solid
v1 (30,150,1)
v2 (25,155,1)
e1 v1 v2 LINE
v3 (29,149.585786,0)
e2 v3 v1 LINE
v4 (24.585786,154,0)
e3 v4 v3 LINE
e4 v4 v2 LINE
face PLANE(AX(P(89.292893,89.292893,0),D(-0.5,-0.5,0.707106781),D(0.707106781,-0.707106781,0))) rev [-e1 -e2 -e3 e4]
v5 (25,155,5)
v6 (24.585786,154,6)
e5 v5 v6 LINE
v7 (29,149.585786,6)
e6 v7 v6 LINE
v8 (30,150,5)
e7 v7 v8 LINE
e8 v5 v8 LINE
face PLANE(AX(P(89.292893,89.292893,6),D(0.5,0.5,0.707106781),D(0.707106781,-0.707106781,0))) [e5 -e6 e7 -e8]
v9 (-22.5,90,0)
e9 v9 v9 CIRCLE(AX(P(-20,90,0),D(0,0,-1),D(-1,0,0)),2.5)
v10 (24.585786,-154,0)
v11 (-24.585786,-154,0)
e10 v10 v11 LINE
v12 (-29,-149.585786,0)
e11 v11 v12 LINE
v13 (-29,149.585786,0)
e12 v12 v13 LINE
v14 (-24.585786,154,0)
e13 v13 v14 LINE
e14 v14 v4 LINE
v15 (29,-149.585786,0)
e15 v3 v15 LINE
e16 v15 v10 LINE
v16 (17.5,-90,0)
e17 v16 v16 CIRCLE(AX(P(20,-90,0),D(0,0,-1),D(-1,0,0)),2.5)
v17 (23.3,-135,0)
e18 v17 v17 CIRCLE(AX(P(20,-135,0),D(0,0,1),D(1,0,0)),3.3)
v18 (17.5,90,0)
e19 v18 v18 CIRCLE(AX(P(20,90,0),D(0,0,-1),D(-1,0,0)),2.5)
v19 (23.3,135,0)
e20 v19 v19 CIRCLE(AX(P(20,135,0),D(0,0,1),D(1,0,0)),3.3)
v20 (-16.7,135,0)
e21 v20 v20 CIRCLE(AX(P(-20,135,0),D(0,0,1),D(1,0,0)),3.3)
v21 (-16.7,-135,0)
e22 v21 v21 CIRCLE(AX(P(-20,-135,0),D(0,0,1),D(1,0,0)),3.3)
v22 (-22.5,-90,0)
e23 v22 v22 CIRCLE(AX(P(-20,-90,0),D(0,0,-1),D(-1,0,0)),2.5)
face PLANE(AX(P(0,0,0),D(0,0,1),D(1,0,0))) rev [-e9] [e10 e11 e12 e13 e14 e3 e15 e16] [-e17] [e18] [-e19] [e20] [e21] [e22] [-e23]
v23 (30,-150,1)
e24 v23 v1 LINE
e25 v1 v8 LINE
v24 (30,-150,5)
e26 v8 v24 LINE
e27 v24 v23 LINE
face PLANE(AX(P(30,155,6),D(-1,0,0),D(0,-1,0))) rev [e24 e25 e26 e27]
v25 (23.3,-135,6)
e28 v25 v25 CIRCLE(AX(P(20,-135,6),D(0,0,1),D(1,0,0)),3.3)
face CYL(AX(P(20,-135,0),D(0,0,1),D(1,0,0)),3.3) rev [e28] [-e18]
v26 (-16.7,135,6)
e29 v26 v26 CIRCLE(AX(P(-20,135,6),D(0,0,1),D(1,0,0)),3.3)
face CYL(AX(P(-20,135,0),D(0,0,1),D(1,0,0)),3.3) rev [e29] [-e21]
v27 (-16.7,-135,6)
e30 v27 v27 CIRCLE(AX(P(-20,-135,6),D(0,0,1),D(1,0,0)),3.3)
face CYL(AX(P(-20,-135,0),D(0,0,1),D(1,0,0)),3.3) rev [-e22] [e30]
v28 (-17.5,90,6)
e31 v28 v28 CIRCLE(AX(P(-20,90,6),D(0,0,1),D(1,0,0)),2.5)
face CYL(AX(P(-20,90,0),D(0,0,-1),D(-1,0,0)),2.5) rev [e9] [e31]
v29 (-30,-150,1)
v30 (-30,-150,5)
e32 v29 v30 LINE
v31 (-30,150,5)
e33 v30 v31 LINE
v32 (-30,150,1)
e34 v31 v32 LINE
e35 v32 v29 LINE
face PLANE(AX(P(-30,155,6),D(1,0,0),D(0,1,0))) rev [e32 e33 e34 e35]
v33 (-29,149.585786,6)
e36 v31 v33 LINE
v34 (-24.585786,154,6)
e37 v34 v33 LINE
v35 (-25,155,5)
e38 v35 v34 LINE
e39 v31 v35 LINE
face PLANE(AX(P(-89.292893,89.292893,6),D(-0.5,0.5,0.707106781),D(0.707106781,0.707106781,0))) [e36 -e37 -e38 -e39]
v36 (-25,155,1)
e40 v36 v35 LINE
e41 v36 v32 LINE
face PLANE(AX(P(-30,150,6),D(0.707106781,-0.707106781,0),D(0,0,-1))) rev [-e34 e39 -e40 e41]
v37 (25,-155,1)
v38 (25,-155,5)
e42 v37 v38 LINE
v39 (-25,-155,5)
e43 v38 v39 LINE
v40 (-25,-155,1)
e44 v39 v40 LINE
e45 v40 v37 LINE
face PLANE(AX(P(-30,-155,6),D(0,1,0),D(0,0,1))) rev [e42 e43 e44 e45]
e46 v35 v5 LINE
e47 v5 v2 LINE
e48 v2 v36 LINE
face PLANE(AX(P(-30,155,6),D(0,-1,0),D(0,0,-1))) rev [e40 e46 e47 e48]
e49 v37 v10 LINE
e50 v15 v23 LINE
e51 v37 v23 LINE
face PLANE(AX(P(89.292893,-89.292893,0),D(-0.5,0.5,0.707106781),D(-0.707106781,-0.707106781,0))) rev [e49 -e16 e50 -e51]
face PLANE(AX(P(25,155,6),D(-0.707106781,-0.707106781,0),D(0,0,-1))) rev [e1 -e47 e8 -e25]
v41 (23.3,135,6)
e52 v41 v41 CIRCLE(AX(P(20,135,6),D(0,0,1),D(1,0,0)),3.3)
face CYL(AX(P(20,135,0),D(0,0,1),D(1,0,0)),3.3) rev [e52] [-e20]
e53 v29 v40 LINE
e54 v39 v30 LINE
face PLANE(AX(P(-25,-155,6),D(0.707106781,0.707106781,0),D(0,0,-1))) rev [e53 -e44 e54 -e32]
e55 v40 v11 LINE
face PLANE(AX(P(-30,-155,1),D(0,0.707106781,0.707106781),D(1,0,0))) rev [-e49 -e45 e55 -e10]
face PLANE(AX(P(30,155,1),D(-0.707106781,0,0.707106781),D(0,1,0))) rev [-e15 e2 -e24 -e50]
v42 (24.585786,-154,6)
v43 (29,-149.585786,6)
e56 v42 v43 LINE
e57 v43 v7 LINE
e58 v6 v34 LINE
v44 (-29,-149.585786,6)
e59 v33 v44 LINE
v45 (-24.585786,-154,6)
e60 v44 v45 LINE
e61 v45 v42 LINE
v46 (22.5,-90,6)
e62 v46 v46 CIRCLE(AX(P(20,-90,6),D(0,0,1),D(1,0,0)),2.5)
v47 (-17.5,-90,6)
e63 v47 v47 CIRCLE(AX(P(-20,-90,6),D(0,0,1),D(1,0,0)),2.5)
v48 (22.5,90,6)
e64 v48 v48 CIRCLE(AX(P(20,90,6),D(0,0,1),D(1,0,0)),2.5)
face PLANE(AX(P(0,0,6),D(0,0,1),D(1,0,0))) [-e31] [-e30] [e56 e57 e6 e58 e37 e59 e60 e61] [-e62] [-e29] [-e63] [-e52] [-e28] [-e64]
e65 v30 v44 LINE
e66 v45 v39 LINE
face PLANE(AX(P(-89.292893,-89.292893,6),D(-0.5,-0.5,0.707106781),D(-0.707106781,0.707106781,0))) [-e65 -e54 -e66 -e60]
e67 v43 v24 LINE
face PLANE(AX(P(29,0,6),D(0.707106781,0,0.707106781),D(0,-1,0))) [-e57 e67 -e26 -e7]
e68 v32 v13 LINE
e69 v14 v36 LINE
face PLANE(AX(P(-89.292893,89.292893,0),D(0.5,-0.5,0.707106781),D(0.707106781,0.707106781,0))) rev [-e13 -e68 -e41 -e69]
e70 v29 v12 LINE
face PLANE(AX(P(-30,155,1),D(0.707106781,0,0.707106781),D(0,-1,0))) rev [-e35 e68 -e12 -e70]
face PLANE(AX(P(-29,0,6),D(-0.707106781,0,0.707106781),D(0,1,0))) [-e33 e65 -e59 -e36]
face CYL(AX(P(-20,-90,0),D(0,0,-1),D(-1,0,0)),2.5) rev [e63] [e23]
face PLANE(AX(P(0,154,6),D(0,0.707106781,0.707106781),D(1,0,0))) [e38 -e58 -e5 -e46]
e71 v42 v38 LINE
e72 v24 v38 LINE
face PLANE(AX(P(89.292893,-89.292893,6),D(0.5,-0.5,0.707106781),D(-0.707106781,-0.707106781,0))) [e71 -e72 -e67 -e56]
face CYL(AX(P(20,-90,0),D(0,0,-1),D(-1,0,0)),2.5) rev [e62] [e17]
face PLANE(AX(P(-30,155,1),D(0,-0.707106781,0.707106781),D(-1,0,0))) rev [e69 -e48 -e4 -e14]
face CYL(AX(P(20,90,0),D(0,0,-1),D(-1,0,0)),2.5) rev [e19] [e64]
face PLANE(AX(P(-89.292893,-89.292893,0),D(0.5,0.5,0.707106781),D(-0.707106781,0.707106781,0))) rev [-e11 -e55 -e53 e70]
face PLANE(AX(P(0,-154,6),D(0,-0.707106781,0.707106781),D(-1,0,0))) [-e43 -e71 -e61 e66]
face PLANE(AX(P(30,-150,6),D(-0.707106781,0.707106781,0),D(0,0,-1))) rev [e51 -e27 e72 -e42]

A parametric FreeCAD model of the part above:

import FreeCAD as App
import Part
import Sketcher


def edges_at(feature, points):
    """Names of the edges that pass closest to the given points."""
    edges = feature.Shape.Edges
    near = lambda p: min(range(len(edges)), key=lambda i: edges[i].distToShape(Part.Vertex(*p))[0])
    return sorted({f"Edge{near(p) + 1}" for p in points})


def add_polygon(sketch, points):
    """Adds a closed chain of lines whose ends are joined by coincident constraints."""
    first, n = sketch.GeometryCount, len(points)
    for a, b in zip(points, points[1:] + points[:1]):
        sketch.addGeometry(Part.LineSegment(App.Vector(*a, 0), App.Vector(*b, 0)), False)
    for i in range(n):
        sketch.addConstraint(Sketcher.Constraint("Coincident", first + i, 2, first + (i + 1) % n, 1))

doc = App.newDocument("Part")
body = doc.addObject("PartDesign::Body", "Body")

sketch1 = body.newObject("Sketcher::SketchObject", "Sketch")
sketch1.AttachmentSupport = (doc.getObject("XY_Plane"), [""])
sketch1.MapMode = "FlatFace"
add_polygon(sketch1, [(-30, 155), (-30, -155), (30, -155), (30, 155)])
sketch1.addConstraint([
    Sketcher.Constraint("Vertical", 0),
    Sketcher.Constraint("Horizontal", 1),
    Sketcher.Constraint("Vertical", 2),
    Sketcher.Constraint("Horizontal", 3),
    Sketcher.Constraint("Symmetric", 0, 2, 2, 2, -1, 1),
    Sketcher.Constraint("DistanceX", 1, 1, 1, 2, 60.0),
    Sketcher.Constraint("DistanceY", 0, 2, 0, 1, 310.0),
])
pad1 = body.newObject("PartDesign::Pad", "Pad")
pad1.Profile = sketch1
pad1.Length = 6

sketch2 = body.newObject("Sketcher::SketchObject", "Sketch001")
sketch2.AttachmentSupport = (doc.getObject("XY_Plane"), [""])
sketch2.MapMode = "FlatFace"
sketch2.AttachmentOffset = App.Placement(App.Vector(0, 0, 6), App.Rotation())
sketch2.addGeometry([
    Part.Circle(App.Vector(-20, 135, 0), App.Vector(0, 0, 1), 3.3),
    Part.Circle(App.Vector(20, 135, 0), App.Vector(0, 0, 1), 3.3),
    Part.Circle(App.Vector(-20, -135, 0), App.Vector(0, 0, 1), 3.3),
    Part.Circle(App.Vector(20, -135, 0), App.Vector(0, 0, 1), 3.3),
], False)
sketch2.addConstraint([
    Sketcher.Constraint("Equal", 0, 1),
    Sketcher.Constraint("Equal", 1, 2),
    Sketcher.Constraint("Equal", 2, 3),
    Sketcher.Constraint("Symmetric", 1, 3, 2, 3, -1, 1),
    Sketcher.Constraint("Symmetric", 0, 3, 3, 3, -1, 1),
    Sketcher.Constraint("Symmetric", 0, 3, 1, 3, -2),
    Sketcher.Constraint("Diameter", 0, 6.6),
    Sketcher.Constraint("DistanceX", 0, 3, -1, 1, 20.0),
    Sketcher.Constraint("DistanceY", -1, 1, 0, 3, 135.0),
])
pocket1 = body.newObject("PartDesign::Pocket", "Pocket")
pocket1.Profile = sketch2
pocket1.Type = "ThroughAll"
doc.recompute()

chamfer = body.newObject("PartDesign::Chamfer", "Chamfer")
chamfer.Base = (pocket1, edges_at(pocket1, [
    (30, -155, 3),
    (-30, -155, 3),
    (-30, 155, 3),
    (30, 155, 3),
]))
chamfer.Size = 5
doc.recompute()

chamfer2 = body.newObject("PartDesign::Chamfer", "Chamfer001")
chamfer2.Base = (chamfer, edges_at(chamfer, [
    (0, -155, 0),
    (0, -155, 6),
    (30, 0, 0),
    (-30, 0, 0),
    (0, 155, 0),
    (27.5, 152.5, 0),
    (-27.5, 152.5, 0),
    (27.5, -152.5, 0),
    (-27.5, -152.5, 0),
    (-30, 0, 6),
    (30, 0, 6),
    (0, 155, 6),
    (27.5, 152.5, 6),
    (-27.5, 152.5, 6),
    (27.5, -152.5, 6),
    (-27.5, -152.5, 6),
]))
chamfer2.Size = 1

sketch3 = body.newObject("Sketcher::SketchObject", "Sketch002")
sketch3.AttachmentSupport = (doc.getObject("XY_Plane"), [""])
sketch3.MapMode = "FlatFace"
sketch3.addGeometry([
    Part.Circle(App.Vector(20, 90, 0), App.Vector(0, 0, 1), 2.5),
    Part.Circle(App.Vector(-20, 90, 0), App.Vector(0, 0, 1), 2.5),
    Part.Circle(App.Vector(-20, -90, 0), App.Vector(0, 0, 1), 2.5),
    Part.Circle(App.Vector(20, -90, 0), App.Vector(0, 0, 1), 2.5),
], False)
sketch3.addConstraint([
    Sketcher.Constraint("Equal", 0, 1),
    Sketcher.Constraint("Equal", 1, 2),
    Sketcher.Constraint("Equal", 2, 3),
    Sketcher.Constraint("Symmetric", 0, 3, 2, 3, -1, 1),
    Sketcher.Constraint("Symmetric", 1, 3, 3, 3, -1, 1),
    Sketcher.Constraint("Symmetric", 0, 3, 1, 3, -2),
    Sketcher.Constraint("Diameter", 0, 5.0),
    Sketcher.Constraint("DistanceX", -1, 1, 0, 3, 20.0),
    Sketcher.Constraint("DistanceY", -1, 1, 0, 3, 90.0),
])
doc.recompute()
hole = body.newObject("PartDesign::Hole", "Hole")
hole.Profile = sketch3
hole.ThreadType = "None"
hole.Diameter = 5
hole.DepthType = "Dimension"
hole.Depth = 19.75
hole.DrillPoint = "Angled"
hole.DrillPointAngle = 118
hole.Reversed = True

doc.recompute()
